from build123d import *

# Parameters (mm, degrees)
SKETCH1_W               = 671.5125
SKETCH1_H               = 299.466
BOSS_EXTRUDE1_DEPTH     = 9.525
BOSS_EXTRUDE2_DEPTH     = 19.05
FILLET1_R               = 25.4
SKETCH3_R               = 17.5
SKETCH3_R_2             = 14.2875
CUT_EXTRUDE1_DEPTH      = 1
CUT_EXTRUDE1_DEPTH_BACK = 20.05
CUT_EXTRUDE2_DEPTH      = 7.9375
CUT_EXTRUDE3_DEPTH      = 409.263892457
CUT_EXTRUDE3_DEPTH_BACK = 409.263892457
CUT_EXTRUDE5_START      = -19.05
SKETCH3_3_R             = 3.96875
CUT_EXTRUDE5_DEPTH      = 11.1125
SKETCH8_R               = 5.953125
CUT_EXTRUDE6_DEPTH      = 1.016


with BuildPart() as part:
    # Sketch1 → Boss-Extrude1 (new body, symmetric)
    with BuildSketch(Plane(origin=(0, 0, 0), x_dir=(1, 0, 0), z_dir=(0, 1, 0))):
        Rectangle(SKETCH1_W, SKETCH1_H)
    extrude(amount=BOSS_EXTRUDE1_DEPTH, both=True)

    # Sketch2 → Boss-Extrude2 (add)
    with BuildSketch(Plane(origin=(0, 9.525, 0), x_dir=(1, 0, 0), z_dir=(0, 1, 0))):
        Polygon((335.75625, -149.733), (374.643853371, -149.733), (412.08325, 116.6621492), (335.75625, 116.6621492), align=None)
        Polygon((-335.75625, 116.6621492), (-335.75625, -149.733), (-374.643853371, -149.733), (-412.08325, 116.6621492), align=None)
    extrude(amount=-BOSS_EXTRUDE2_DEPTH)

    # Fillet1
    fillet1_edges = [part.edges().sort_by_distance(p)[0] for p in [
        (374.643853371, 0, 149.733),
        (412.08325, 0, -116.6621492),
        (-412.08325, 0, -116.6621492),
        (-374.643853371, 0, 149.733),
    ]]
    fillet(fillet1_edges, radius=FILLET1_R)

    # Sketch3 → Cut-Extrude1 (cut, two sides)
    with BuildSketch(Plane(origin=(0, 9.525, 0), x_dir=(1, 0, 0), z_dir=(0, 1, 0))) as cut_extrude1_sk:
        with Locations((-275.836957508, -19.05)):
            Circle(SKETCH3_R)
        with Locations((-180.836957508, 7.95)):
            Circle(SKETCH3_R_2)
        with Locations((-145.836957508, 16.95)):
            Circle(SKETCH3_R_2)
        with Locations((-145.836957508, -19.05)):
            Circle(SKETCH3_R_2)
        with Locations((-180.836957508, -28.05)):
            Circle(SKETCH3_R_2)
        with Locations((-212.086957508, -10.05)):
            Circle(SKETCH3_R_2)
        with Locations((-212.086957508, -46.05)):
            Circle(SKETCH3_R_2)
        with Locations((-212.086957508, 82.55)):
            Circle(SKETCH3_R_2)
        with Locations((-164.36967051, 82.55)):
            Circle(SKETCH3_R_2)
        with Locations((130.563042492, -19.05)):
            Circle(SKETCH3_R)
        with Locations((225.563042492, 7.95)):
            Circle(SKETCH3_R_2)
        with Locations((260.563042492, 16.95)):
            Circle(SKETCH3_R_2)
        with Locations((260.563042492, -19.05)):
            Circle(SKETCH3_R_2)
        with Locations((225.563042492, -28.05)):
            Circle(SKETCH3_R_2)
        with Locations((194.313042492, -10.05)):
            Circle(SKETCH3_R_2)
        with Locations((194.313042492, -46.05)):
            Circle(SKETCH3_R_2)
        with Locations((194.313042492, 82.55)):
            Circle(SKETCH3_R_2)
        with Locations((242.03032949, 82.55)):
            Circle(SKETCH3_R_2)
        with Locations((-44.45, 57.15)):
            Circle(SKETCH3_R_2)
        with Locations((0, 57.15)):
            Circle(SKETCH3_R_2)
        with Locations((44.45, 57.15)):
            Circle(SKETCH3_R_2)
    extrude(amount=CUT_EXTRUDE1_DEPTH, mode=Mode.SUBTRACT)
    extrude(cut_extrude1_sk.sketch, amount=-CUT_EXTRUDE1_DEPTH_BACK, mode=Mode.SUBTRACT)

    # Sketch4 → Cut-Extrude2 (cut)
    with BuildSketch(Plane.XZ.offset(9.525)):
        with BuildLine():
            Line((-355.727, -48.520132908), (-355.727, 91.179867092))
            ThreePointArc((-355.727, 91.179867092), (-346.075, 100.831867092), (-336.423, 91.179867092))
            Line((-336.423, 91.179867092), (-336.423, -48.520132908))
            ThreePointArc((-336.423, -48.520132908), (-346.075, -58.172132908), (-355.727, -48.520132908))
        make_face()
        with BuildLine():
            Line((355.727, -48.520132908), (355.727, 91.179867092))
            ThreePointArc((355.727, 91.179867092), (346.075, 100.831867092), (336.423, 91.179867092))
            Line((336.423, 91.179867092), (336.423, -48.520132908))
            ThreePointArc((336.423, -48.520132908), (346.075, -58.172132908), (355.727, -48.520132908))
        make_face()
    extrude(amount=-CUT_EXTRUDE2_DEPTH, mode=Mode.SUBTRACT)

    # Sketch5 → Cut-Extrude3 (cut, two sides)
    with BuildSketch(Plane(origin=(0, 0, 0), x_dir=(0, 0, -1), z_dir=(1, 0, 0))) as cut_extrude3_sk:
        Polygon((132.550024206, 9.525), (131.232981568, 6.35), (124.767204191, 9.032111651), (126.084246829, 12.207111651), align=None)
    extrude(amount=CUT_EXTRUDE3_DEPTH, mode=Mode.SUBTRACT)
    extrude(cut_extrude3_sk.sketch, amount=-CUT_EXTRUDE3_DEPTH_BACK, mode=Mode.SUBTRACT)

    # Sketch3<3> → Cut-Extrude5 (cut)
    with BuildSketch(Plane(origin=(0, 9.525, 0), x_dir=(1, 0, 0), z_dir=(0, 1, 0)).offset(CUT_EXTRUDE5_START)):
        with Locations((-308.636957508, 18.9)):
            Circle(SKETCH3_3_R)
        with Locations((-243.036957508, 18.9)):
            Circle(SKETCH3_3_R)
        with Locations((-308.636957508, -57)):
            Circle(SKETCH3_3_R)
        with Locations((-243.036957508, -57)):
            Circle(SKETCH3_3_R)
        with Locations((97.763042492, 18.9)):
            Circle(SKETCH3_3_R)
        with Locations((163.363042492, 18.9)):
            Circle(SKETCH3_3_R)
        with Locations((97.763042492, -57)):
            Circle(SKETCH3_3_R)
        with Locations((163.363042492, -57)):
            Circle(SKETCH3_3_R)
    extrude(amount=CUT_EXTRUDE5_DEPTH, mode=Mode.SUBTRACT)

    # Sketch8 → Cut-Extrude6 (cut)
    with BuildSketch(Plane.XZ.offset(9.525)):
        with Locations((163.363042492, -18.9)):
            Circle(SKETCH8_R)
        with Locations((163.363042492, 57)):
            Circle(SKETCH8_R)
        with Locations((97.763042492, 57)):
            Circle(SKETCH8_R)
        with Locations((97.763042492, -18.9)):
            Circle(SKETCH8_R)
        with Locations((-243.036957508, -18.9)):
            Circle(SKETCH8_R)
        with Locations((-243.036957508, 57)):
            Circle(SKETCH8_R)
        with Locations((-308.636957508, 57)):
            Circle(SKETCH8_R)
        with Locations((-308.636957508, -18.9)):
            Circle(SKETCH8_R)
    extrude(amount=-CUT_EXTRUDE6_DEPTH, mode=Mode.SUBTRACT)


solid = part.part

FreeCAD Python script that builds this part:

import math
import FreeCAD as App
import Part
import Sketcher
Q = App.Units.Quantity


def edges_at(feature, points):
    """Names of the edges that pass closest to the given points."""
    edges = feature.Shape.Edges
    near = lambda p: min(range(len(edges)), key=lambda i: edges[i].distToShape(Part.Vertex(*p))[0])
    return sorted({f"Edge{near(p) + 1}" for p in points})

doc = App.newDocument("Part")
body = doc.addObject("PartDesign::Body", "Body")

# Sketch on XZ plane
sketch1 = doc.addObject("Sketcher::SketchObject", "Sketch")
body.addObject(sketch1)
sketch1.AttachmentSupport = (doc.XZ_Plane, [""])
sketch1.MapMode = "FlatFace"
sketch1.addGeometry([
    Part.LineSegment(App.Vector(-335.75625, -149.733, 0), App.Vector(-335.75625, 149.733, 0)),
    Part.LineSegment(App.Vector(-335.75625, 149.733, 0), App.Vector(335.75625, 149.733, 0)),
    Part.LineSegment(App.Vector(335.75625, 149.733, 0), App.Vector(335.75625, -149.733, 0)),
    Part.LineSegment(App.Vector(335.75625, -149.733, 0), App.Vector(-335.75625, -149.733, 0)),
], False)
sketch1.addConstraint([
    Sketcher.Constraint("Coincident", 0, 2, 1, 1),
    Sketcher.Constraint("Coincident", 1, 2, 2, 1),
    Sketcher.Constraint("Coincident", 2, 2, 3, 1),
    Sketcher.Constraint("Coincident", 3, 2, 0, 1),
    Sketcher.Constraint("Vertical", 0),
    Sketcher.Constraint("Horizontal", 1),
    Sketcher.Constraint("Vertical", 2),
    Sketcher.Constraint("Horizontal", 3),
    Sketcher.Constraint("Symmetric", 0, 2, 2, 2, -1, 1),
    Sketcher.Constraint("DistanceY", 0, 1, 0, 2, Q("11.79 in")),
    Sketcher.Constraint("DistanceX", 1, 1, 1, 2, Q("26.4375 in")),
])
pad1 = doc.addObject("PartDesign::Pad", "Pad")
body.addObject(pad1)
pad1.Profile = sketch1
pad1.Length = Q("0.75 in")
pad1.Midplane = True

# Sketch on XZ plane
sketch2 = doc.addObject("Sketcher::SketchObject", "Sketch001")
body.addObject(sketch2)
sketch2.AttachmentSupport = (doc.XZ_Plane, [""])
sketch2.MapMode = "FlatFace"
sketch2.AttachmentOffset = App.Placement(App.Vector(0, 0, -0.375 * 25.4), App.Rotation())
sketch2.addGeometry([
    Part.LineSegment(App.Vector(335.75625, 149.733, 0), App.Vector(374.643853, 149.733, 0)),  # 0
    Part.LineSegment(App.Vector(374.643853, 149.733, 0), App.Vector(412.08325, -116.662149, 0)),  # 1
    Part.LineSegment(App.Vector(412.08325, -116.662149, 0), App.Vector(335.75625, -116.662149, 0)),  # 2
    Part.LineSegment(App.Vector(335.75625, -116.662149, 0), App.Vector(335.75625, 149.733, 0)),  # 3
    Part.LineSegment(App.Vector(-335.75625, 149.733, 0), App.Vector(-335.75625, -116.662149, 0)),  # 4
    Part.LineSegment(App.Vector(-335.75625, -116.662149, 0), App.Vector(-412.08325, -116.662149, 0)),  # 5
    Part.LineSegment(App.Vector(-412.08325, -116.662149, 0), App.Vector(-374.643853, 149.733, 0)),  # 6
    Part.LineSegment(App.Vector(-374.643853, 149.733, 0), App.Vector(-335.75625, 149.733, 0)),  # 7
], False)
sketch2.addConstraint([
    Sketcher.Constraint("Coincident", 0, 2, 1, 1),
    Sketcher.Constraint("Coincident", 1, 2, 2, 1),
    Sketcher.Constraint("Coincident", 2, 2, 3, 1),
    Sketcher.Constraint("Coincident", 3, 2, 0, 1),
    Sketcher.Constraint("Coincident", 4, 2, 5, 1),
    Sketcher.Constraint("Coincident", 5, 2, 6, 1),
    Sketcher.Constraint("Coincident", 6, 2, 7, 1),
    Sketcher.Constraint("Coincident", 7, 2, 4, 1),
    Sketcher.Constraint("Horizontal", 0),
    Sketcher.Constraint("Horizontal", 2),
    Sketcher.Constraint("Vertical", 3),
    Sketcher.Constraint("Vertical", 4),
    Sketcher.Constraint("Horizontal", 5),
    Sketcher.Constraint("Horizontal", 7),
    Sketcher.Constraint("Symmetric", 2, 2, 4, 2, -2),
    Sketcher.Constraint("Symmetric", 0, 2, 6, 2, -2),
    Sketcher.Constraint("Equal", 2, 5),
    Sketcher.Constraint("Angle", 1, Q("-82 deg")),
    Sketcher.Constraint("DistanceX", 2, 2, 2, 1, Q("3.005 in")),
    Sketcher.Constraint("DistanceY", -1, 1, 0, 2, Q("5.895 in")),
    Sketcher.Constraint("DistanceX", -1, 1, 2, 2, Q("13.21875 in")),
    Sketcher.Constraint("DistanceY", 3, 1, 3, 2, 266.395149),
])
pad2 = doc.addObject("PartDesign::Pad", "Pad001")
body.addObject(pad2)
pad2.Profile = sketch2
pad2.Length = Q("0.75 in")
doc.recompute()

fillet = doc.addObject("PartDesign::Fillet", "Fillet")
body.addObject(fillet)
fillet.Base = (pad2, edges_at(pad2, [
    (374.644, 0, 149.733),
    (412.083, 0, -116.662),
    (-412.083, 0, -116.662),
    (-374.644, 0, 149.733),
]))
fillet.Radius = Q("1 in")

# Sketch on XZ plane
sketch3 = doc.addObject("Sketcher::SketchObject", "Sketch002")
body.addObject(sketch3)
sketch3.AttachmentSupport = (doc.XZ_Plane, [""])
sketch3.MapMode = "FlatFace"
sketch3.AttachmentOffset = App.Placement(App.Vector(0, 0, -0.375 * 25.4), App.Rotation())
sketch3.addGeometry([
    Part.Circle(App.Vector(-275.836958, 19.05, 0), App.Vector(0, 0, 1), 17.5),  # 0
    Part.Circle(App.Vector(-180.836958, -7.95, 0), App.Vector(0, 0, 1), 14.2875),  # 1
    Part.Circle(App.Vector(-145.836958, -16.95, 0), App.Vector(0, 0, 1), 14.2875),  # 2
    Part.Circle(App.Vector(-145.836958, 19.05, 0), App.Vector(0, 0, 1), 14.2875),  # 3
    Part.Circle(App.Vector(-180.836958, 28.05, 0), App.Vector(0, 0, 1), 14.2875),  # 4
    Part.Circle(App.Vector(-212.086958, 10.05, 0), App.Vector(0, 0, 1), 14.2875),  # 5
    Part.Circle(App.Vector(-212.086958, 46.05, 0), App.Vector(0, 0, 1), 14.2875),  # 6
    Part.Circle(App.Vector(-212.086958, -82.55, 0), App.Vector(0, 0, 1), 14.2875),  # 7
    Part.Circle(App.Vector(-164.369671, -82.55, 0), App.Vector(0, 0, 1), 14.2875),  # 8
    Part.Circle(App.Vector(130.563042, 19.05, 0), App.Vector(0, 0, 1), 17.5),  # 9
    Part.Circle(App.Vector(225.563042, -7.95, 0), App.Vector(0, 0, 1), 14.2875),  # 10
    Part.Circle(App.Vector(260.563042, -16.95, 0), App.Vector(0, 0, 1), 14.2875),  # 11
    Part.Circle(App.Vector(260.563042, 19.05, 0), App.Vector(0, 0, 1), 14.2875),  # 12
    Part.Circle(App.Vector(225.563042, 28.05, 0), App.Vector(0, 0, 1), 14.2875),  # 13
    Part.Circle(App.Vector(194.313042, 10.05, 0), App.Vector(0, 0, 1), 14.2875),  # 14
    Part.Circle(App.Vector(194.313042, 46.05, 0), App.Vector(0, 0, 1), 14.2875),  # 15
    Part.Circle(App.Vector(194.313042, -82.55, 0), App.Vector(0, 0, 1), 14.2875),  # 16
    Part.Circle(App.Vector(242.030329, -82.55, 0), App.Vector(0, 0, 1), 14.2875),  # 17
    Part.Circle(App.Vector(-44.45, -57.15, 0), App.Vector(0, 0, 1), 14.2875),  # 18
    Part.Circle(App.Vector(0, -57.15, 0), App.Vector(0, 0, 1), 14.2875),  # 19
    Part.Circle(App.Vector(44.45, -57.15, 0), App.Vector(0, 0, 1), 14.2875),  # 20
], False)
sketch3.addConstraint([
    Sketcher.Constraint("Equal", 1, 2),
    Sketcher.Constraint("Equal", 2, 3),
    Sketcher.Constraint("Equal", 3, 4),
    Sketcher.Constraint("Equal", 4, 5),
    Sketcher.Constraint("Equal", 5, 6),
    Sketcher.Constraint("Equal", 6, 7),
    Sketcher.Constraint("Equal", 7, 8),
    Sketcher.Constraint("Equal", 0, 9),
    Sketcher.Constraint("Equal", 8, 10),
    Sketcher.Constraint("Equal", 10, 11),
    Sketcher.Constraint("Equal", 11, 12),
    Sketcher.Constraint("Equal", 12, 13),
    Sketcher.Constraint("Equal", 13, 14),
    Sketcher.Constraint("Equal", 14, 15),
    Sketcher.Constraint("Equal", 15, 16),
    Sketcher.Constraint("Equal", 16, 17),
    Sketcher.Constraint("Equal", 17, 18),
    Sketcher.Constraint("Equal", 18, 19),
    Sketcher.Constraint("Equal", 19, 20),
    Sketcher.Constraint("Symmetric", 18, 3, 20, 3, -2),
    Sketcher.Constraint("PointOnObject", 19, 3, -2),
    Sketcher.Constraint("Horizontal", 0, 3, 3, 3),
    Sketcher.Constraint("Horizontal", 7, 3, 8, 3),
    Sketcher.Constraint("Horizontal", 3, 3, 9, 3),
    Sketcher.Constraint("Horizontal", 1, 3, 10, 3),
    Sketcher.Constraint("Horizontal", 2, 3, 11, 3),
    Sketcher.Constraint("Horizontal", 9, 3, 12, 3),
    Sketcher.Constraint("Horizontal", 4, 3, 13, 3),
    Sketcher.Constraint("Horizontal", 5, 3, 14, 3),
    Sketcher.Constraint("Horizontal", 6, 3, 15, 3),
    Sketcher.Constraint("Horizontal", 8, 3, 16, 3),
    Sketcher.Constraint("Horizontal", 16, 3, 17, 3),
    Sketcher.Constraint("Horizontal", 18, 3, 19, 3),
    Sketcher.Constraint("Vertical", 2, 3, 3, 3),
    Sketcher.Constraint("Vertical", 1, 3, 4, 3),
    Sketcher.Constraint("Vertical", 5, 3, 6, 3),
    Sketcher.Constraint("Vertical", 6, 3, 7, 3),
    Sketcher.Constraint("Vertical", 11, 3, 12, 3),
    Sketcher.Constraint("Vertical", 10, 3, 13, 3),
    Sketcher.Constraint("Vertical", 14, 3, 15, 3),
    Sketcher.Constraint("Vertical", 15, 3, 16, 3),
    Sketcher.Constraint("Diameter", 1, Q("1.125 in")),
    Sketcher.Constraint("DistanceY", 7, 3, 0, 3, Q("4 in")),
    Sketcher.Constraint("DistanceX", 1, 3, 10, 3, Q("16 in")),
    Sketcher.Constraint("DistanceX", 2, 3, 11, 3, Q("16 in")),
    Sketcher.Constraint("DistanceY", 8, 3, 18, 3, Q("1 in")),
    Sketcher.Constraint("DistanceX", 18, 3, 20, 3, Q("3.5 in")),
    Sketcher.Constraint("Diameter", 0, 35.0),
    Sketcher.Constraint("DistanceY", -1, 1, 0, 3, Q("0.75 in")),
    Sketcher.Constraint("DistanceY", 1, 3, -1, 1, 7.95),
    Sketcher.Constraint("DistanceY", 2, 3, -1, 1, 16.95),
    Sketcher.Constraint("DistanceY", -1, 1, 4, 3, 28.05),
    Sketcher.Constraint("DistanceY", -1, 1, 5, 3, 10.05),
    Sketcher.Constraint("DistanceY", -1, 1, 6, 3, 46.05),
    Sketcher.Constraint("DistanceX", 0, 3, 1, 3, 95.0),
    Sketcher.Constraint("DistanceX", 1, 3, 2, 3, 35.0),
    Sketcher.Constraint("DistanceX", 5, 3, 1, 3, 31.25),
    Sketcher.Constraint("DistanceX", 3, 3, 9, 3, 276.4),
    Sketcher.Constraint("DistanceX", 14, 3, 10, 3, 31.25),
    Sketcher.Constraint("DistanceX", 8, 3, -1, 1, 164.369671),
    Sketcher.Constraint("DistanceX", -1, 1, 17, 3, 242.030329),
    Sketcher.Constraint("DistanceX", 0, 3, -1, 1, 275.836958),
])
pocket1 = doc.addObject("PartDesign::Pocket", "Pocket")
body.addObject(pocket1)
pocket1.Profile = sketch3
pocket1.Type = "ThroughAll"
pocket1.Midplane = True

# Sketch on XZ plane
sketch4 = doc.addObject("Sketcher::SketchObject", "Sketch003")
body.addObject(sketch4)
sketch4.AttachmentSupport = (doc.XZ_Plane, [""])
sketch4.MapMode = "FlatFace"
sketch4.AttachmentOffset = App.Placement(App.Vector(0, 0, 0.375 * 25.4), App.Rotation())
sketch4.addGeometry([
    Part.LineSegment(App.Vector(-355.727, 91.179867, 0), App.Vector(-355.727, -48.520133, 0)),  # 0
    Part.ArcOfCircle(Part.Circle(App.Vector(-346.075, -48.520133, 0), App.Vector(0, 0, 1), 9.652), math.radians(180), math.radians(360)),  # 1
    Part.LineSegment(App.Vector(-336.423, -48.520133, 0), App.Vector(-336.423, 91.179867, 0)),  # 2
    Part.ArcOfCircle(Part.Circle(App.Vector(-346.075, 91.179867, 0), App.Vector(0, 0, 1), 9.652), math.radians(0), math.radians(180)),  # 3
    Part.LineSegment(App.Vector(355.727, -48.520133, 0), App.Vector(355.727, 91.179867, 0)),  # 4
    Part.ArcOfCircle(Part.Circle(App.Vector(346.075, 91.179867, 0), App.Vector(0, 0, 1), 9.652), math.radians(0), math.radians(180)),  # 5
    Part.LineSegment(App.Vector(336.423, 91.179867, 0), App.Vector(336.423, -48.520133, 0)),  # 6
    Part.ArcOfCircle(Part.Circle(App.Vector(346.075, -48.520133, 0), App.Vector(0, 0, 1), 9.652), math.radians(180), math.radians(360)),  # 7
], False)
sketch4.addConstraint([
    Sketcher.Constraint("Tangent", 0, 2, 1, 1),
    Sketcher.Constraint("Tangent", 1, 2, 2, 1),
    Sketcher.Constraint("Tangent", 2, 2, 3, 1),
    Sketcher.Constraint("Tangent", 3, 2, 0, 1),
    Sketcher.Constraint("Tangent", 4, 2, 5, 1),
    Sketcher.Constraint("Tangent", 5, 2, 6, 1),
    Sketcher.Constraint("Tangent", 6, 2, 7, 1),
    Sketcher.Constraint("Tangent", 7, 2, 4, 1),
    Sketcher.Constraint("Vertical", 0),
    Sketcher.Constraint("Vertical", 2),
    Sketcher.Constraint("Vertical", 4),
    Sketcher.Constraint("Vertical", 6),
    Sketcher.Constraint("Equal", 3, 5),
    Sketcher.Constraint("Symmetric", 3, 3, 5, 3, -2),
    Sketcher.Constraint("Horizontal", 1, 3, 7, 3),
    Sketcher.Constraint("Radius", 1, Q("0.38 in")),
    Sketcher.Constraint("DistanceY", 0, 2, 0, 1, Q("5.5 in")),
    Sketcher.Constraint("DistanceX", 3, 3, 5, 3, Q("27.25 in")),
    Sketcher.Constraint("DistanceY", 1, 3, -1, 1, 48.520133),
])
pocket2 = doc.addObject("PartDesign::Pocket", "Pocket001")
body.addObject(pocket2)
pocket2.Profile = sketch4
pocket2.Length = Q("0.3125 in")

# Sketch on YZ plane
sketch5 = doc.addObject("Sketcher::SketchObject", "Sketch004")
body.addObject(sketch5)
sketch5.AttachmentSupport = (doc.YZ_Plane, [""])
sketch5.MapMode = "FlatFace"
sketch5.addGeometry([
    Part.LineSegment(App.Vector(6.35, -131.232982, 0), App.Vector(9.525, -132.550024, 0)),
    Part.LineSegment(App.Vector(9.525, -132.550024, 0), App.Vector(12.207112, -126.084247, 0)),
    Part.LineSegment(App.Vector(12.207112, -126.084247, 0), App.Vector(9.032112, -124.767204, 0)),
    Part.LineSegment(App.Vector(9.032112, -124.767204, 0), App.Vector(6.35, -131.232982, 0)),
], False)
sketch5.addConstraint([
    Sketcher.Constraint("Coincident", 0, 2, 1, 1),
    Sketcher.Constraint("Coincident", 1, 2, 2, 1),
    Sketcher.Constraint("Coincident", 2, 2, 3, 1),
    Sketcher.Constraint("Coincident", 3, 2, 0, 1),
    Sketcher.Constraint("Perpendicular", 0, 1),
    Sketcher.Constraint("Perpendicular", 1, 2),
    Sketcher.Constraint("Perpendicular", 2, 3),
    Sketcher.Constraint("DistanceX", -1, 1, 3, 2, Q("0.25 in")),
    Sketcher.Constraint("DistanceX", -1, 1, 0, 2, Q("0.375 in")),
    Sketcher.Constraint("Distance", 1, 7.0),
    Sketcher.Constraint("Distance", 0, 3.437328),
    Sketcher.Constraint("DistanceY", 3, 2, -1, 1, 131.232982),
])
pocket3 = doc.addObject("PartDesign::Pocket", "Pocket002")
body.addObject(pocket3)
pocket3.Profile = sketch5
pocket3.Type = "ThroughAll"
pocket3.Midplane = True

# Sketch on XZ plane
sketch6 = doc.addObject("Sketcher::SketchObject", "Sketch005")
body.addObject(sketch6)
sketch6.AttachmentSupport = (doc.XZ_Plane, [""])
sketch6.MapMode = "FlatFace"
sketch6.AttachmentOffset = App.Placement(App.Vector(0, 0, 0.375 * 25.4), App.Rotation())
sketch6.addGeometry([
    Part.Circle(App.Vector(-308.636958, -18.9, 0), App.Vector(0, 0, 1), 3.96875),  # 0
    Part.Circle(App.Vector(-243.036958, -18.9, 0), App.Vector(0, 0, 1), 3.96875),  # 1
    Part.Circle(App.Vector(-308.636958, 57, 0), App.Vector(0, 0, 1), 3.96875),  # 2
    Part.Circle(App.Vector(-243.036958, 57, 0), App.Vector(0, 0, 1), 3.96875),  # 3
    Part.Circle(App.Vector(97.763042, -18.9, 0), App.Vector(0, 0, 1), 3.96875),  # 4
    Part.Circle(App.Vector(163.363042, -18.9, 0), App.Vector(0, 0, 1), 3.96875),  # 5
    Part.Circle(App.Vector(97.763042, 57, 0), App.Vector(0, 0, 1), 3.96875),  # 6
    Part.Circle(App.Vector(163.363042, 57, 0), App.Vector(0, 0, 1), 3.96875),  # 7
], False)
sketch6.addConstraint([
    Sketcher.Constraint("Equal", 0, 1),
    Sketcher.Constraint("Equal", 1, 2),
    Sketcher.Constraint("Equal", 2, 3),
    Sketcher.Constraint("Equal", 3, 4),
    Sketcher.Constraint("Equal", 4, 5),
    Sketcher.Constraint("Equal", 5, 6),
    Sketcher.Constraint("Equal", 6, 7),
    Sketcher.Constraint("Horizontal", 0, 3, 1, 3),
    Sketcher.Constraint("Horizontal", 2, 3, 3, 3),
    Sketcher.Constraint("Horizontal", 1, 3, 4, 3),
    Sketcher.Constraint("Horizontal", 4, 3, 5, 3),
    Sketcher.Constraint("Horizontal", 3, 3, 6, 3),
    Sketcher.Constraint("Horizontal", 6, 3, 7, 3),
    Sketcher.Constraint("Vertical", 0, 3, 2, 3),
    Sketcher.Constraint("Vertical", 1, 3, 3, 3),
    Sketcher.Constraint("Vertical", 4, 3, 6, 3),
    Sketcher.Constraint("Vertical", 5, 3, 7, 3),
    Sketcher.Constraint("Diameter", 0, Q("0.3125 in")),
    Sketcher.Constraint("DistanceX", 0, 3, 4, 3, Q("16 in")),
    Sketcher.Constraint("DistanceX", 1, 3, 5, 3, Q("16 in")),
    Sketcher.Constraint("DistanceY", 0, 3, -1, 1, 18.9),
    Sketcher.Constraint("DistanceY", -1, 1, 2, 3, 57.0),
    Sketcher.Constraint("DistanceX", 0, 3, 1, 3, 65.6),
    Sketcher.Constraint("DistanceX", 0, 3, -1, 1, 308.636958),
])
pocket4 = doc.addObject("PartDesign::Pocket", "Pocket003")
body.addObject(pocket4)
pocket4.Profile = sketch6
pocket4.Length = Q("0.4375 in")

# Sketch on XZ plane
sketch7 = doc.addObject("Sketcher::SketchObject", "Sketch006")
body.addObject(sketch7)
sketch7.AttachmentSupport = (doc.XZ_Plane, [""])
sketch7.MapMode = "FlatFace"
sketch7.AttachmentOffset = App.Placement(App.Vector(0, 0, 0.375 * 25.4), App.Rotation())
sketch7.addGeometry([
    Part.Circle(App.Vector(163.363042, -18.9, 0), App.Vector(0, 0, 1), 5.953125),  # 0
    Part.Circle(App.Vector(163.363042, 57, 0), App.Vector(0, 0, 1), 5.953125),  # 1
    Part.Circle(App.Vector(97.763042, 57, 0), App.Vector(0, 0, 1), 5.953125),  # 2
    Part.Circle(App.Vector(97.763042, -18.9, 0), App.Vector(0, 0, 1), 5.953125),  # 3
    Part.Circle(App.Vector(-243.036958, -18.9, 0), App.Vector(0, 0, 1), 5.953125),  # 4
    Part.Circle(App.Vector(-243.036958, 57, 0), App.Vector(0, 0, 1), 5.953125),  # 5
    Part.Circle(App.Vector(-308.636958, 57, 0), App.Vector(0, 0, 1), 5.953125),  # 6
    Part.Circle(App.Vector(-308.636958, -18.9, 0), App.Vector(0, 0, 1), 5.953125),  # 7
], False)
sketch7.addConstraint([
    Sketcher.Constraint("Equal", 0, 1),
    Sketcher.Constraint("Equal", 1, 2),
    Sketcher.Constraint("Equal", 2, 3),
    Sketcher.Constraint("Equal", 3, 4),
    Sketcher.Constraint("Equal", 4, 5),
    Sketcher.Constraint("Equal", 5, 6),
    Sketcher.Constraint("Equal", 6, 7),
    Sketcher.Constraint("Horizontal", 1, 3, 2, 3),
    Sketcher.Constraint("Horizontal", 0, 3, 3, 3),
    Sketcher.Constraint("Horizontal", 3, 3, 4, 3),
    Sketcher.Constraint("Horizontal", 2, 3, 5, 3),
    Sketcher.Constraint("Horizontal", 5, 3, 6, 3),
    Sketcher.Constraint("Horizontal", 4, 3, 7, 3),
    Sketcher.Constraint("Vertical", 0, 3, 1, 3),
    Sketcher.Constraint("Vertical", 2, 3, 3, 3),
    Sketcher.Constraint("Vertical", 4, 3, 5, 3),
    Sketcher.Constraint("Vertical", 6, 3, 7, 3),
    Sketcher.Constraint("Diameter", 0, Q("0.46875 in")),
    Sketcher.Constraint("DistanceX", 4, 3, 0, 3, Q("16 in")),
    Sketcher.Constraint("DistanceX", 6, 3, 2, 3, Q("16 in")),
    Sketcher.Constraint("DistanceY", 0, 3, -1, 1, 18.9),
    Sketcher.Constraint("DistanceY", -1, 1, 1, 3, 57.0),
    Sketcher.Constraint("DistanceX", 2, 3, 1, 3, 65.6),
    Sketcher.Constraint("DistanceX", -1, 1, 0, 3, 163.363042),
])
pocket5 = doc.addObject("PartDesign::Pocket", "Pocket004")
body.addObject(pocket5)
pocket5.Profile = sketch7
pocket5.Length = Q("0.04 in")

doc.recompute()
